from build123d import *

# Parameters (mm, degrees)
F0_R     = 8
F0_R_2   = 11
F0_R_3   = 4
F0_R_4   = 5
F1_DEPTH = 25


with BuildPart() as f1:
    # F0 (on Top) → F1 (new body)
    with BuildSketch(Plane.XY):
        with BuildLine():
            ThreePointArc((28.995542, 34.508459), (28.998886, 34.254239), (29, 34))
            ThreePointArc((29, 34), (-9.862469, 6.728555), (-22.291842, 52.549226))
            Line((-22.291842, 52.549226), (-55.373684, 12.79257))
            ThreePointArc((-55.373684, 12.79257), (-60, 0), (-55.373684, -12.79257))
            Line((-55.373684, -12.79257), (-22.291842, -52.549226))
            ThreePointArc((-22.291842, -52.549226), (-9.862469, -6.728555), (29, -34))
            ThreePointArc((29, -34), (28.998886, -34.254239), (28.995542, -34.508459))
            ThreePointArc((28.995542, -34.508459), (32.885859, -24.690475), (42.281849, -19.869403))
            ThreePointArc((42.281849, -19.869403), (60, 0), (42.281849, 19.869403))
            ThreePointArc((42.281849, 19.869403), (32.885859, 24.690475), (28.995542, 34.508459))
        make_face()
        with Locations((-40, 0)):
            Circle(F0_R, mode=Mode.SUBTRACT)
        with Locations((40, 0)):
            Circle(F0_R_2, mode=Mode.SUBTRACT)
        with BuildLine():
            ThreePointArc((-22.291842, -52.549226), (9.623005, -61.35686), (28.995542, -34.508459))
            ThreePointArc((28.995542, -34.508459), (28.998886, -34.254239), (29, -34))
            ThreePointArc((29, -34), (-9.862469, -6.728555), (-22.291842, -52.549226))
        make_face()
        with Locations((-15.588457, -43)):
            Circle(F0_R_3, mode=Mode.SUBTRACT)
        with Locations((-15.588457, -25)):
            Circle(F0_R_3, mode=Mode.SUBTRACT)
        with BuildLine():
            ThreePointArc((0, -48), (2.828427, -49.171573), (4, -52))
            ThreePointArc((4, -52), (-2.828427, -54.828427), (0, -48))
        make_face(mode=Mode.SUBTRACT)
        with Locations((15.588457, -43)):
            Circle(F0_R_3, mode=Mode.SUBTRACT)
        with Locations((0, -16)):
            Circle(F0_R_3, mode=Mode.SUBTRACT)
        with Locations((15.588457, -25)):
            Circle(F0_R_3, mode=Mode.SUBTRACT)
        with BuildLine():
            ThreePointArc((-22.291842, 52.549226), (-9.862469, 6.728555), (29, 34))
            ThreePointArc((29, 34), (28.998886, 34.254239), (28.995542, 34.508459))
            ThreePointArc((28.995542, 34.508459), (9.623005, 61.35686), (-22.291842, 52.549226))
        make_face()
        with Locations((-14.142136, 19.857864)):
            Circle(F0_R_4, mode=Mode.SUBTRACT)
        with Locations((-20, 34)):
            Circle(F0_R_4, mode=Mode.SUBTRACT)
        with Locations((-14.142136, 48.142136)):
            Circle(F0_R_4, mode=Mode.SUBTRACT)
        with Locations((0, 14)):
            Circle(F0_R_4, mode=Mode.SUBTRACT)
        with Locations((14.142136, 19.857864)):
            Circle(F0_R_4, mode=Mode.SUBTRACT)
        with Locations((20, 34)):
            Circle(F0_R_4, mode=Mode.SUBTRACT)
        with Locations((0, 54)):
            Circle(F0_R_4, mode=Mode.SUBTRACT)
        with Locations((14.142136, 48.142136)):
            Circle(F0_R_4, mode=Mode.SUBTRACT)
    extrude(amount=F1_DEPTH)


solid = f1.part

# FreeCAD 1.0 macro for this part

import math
import FreeCAD as App
import Part
import Sketcher

V = App.Vector
Q = App.Units.Quantity

doc = App.newDocument("Part")
body = doc.addObject("PartDesign::Body", "Body")

# Sketch on XY plane
sketch1 = body.newObject("Sketcher::SketchObject", "Sketch")
sketch1.AttachmentSupport = (doc.getObject("XY_Plane"), [""])
sketch1.MapMode = "FlatFace"
sketch1.addGeometry(Part.ArcOfCircle(Part.Circle(V(44, 34.8, 0), V(0, 0, 1), 15), math.radians(-179), math.radians(-97)), False)
sketch1.addGeometry(Part.ArcOfCircle(Part.Circle(V(0, 34, 0), V(0, 0, 1), 29), math.radians(1), math.radians(140)), False)
sketch1.addGeometry(Part.LineSegment(V(-22.3, 52.5, 0), V(-55.4, 12.8, 0)), False)
sketch1.addGeometry(Part.ArcOfCircle(Part.Circle(V(-40, 0, 0), V(0, 0, 1), 20), math.radians(140), math.radians(220)), False)
sketch1.addGeometry(Part.LineSegment(V(-55.4, -12.8, 0), V(-22.3, -52.5, 0)), False)
sketch1.addGeometry(Part.ArcOfCircle(Part.Circle(V(0, -34, 0), V(0, 0, 1), 29), math.radians(-140), math.radians(-1)), False)
sketch1.addGeometry(Part.ArcOfCircle(Part.Circle(V(44, -34.8, 0), V(0, 0, 1), 15), math.radians(97), math.radians(179)), False)
sketch1.addGeometry(Part.ArcOfCircle(Part.Circle(V(40, 0, 0), V(0, 0, 1), 20), math.radians(-83), math.radians(83)), False)
sketch1.addGeometry(Part.Circle(V(-15.6, -43, 0), V(0, 0, 1), 4), False)
sketch1.addGeometry(Part.ArcOfCircle(Part.Circle(V(0, -52, 0), V(0, 0, 1), 4), math.radians(90), math.radians(360)), False)
sketch1.addGeometry(Part.ArcOfCircle(Part.Circle(V(0, -52, 0), V(0, 0, 1), 4), math.radians(0), math.radians(90)), False)
sketch1.addGeometry(Part.Circle(V(-40, 0, 0), V(0, 0, 1), 8), False)
sketch1.addGeometry(Part.Circle(V(-15.6, -25, 0), V(0, 0, 1), 4), False)
sketch1.addGeometry(Part.Circle(V(0, -16, 0), V(0, 0, 1), 4), False)
sketch1.addGeometry(Part.Circle(V(15.6, -43, 0), V(0, 0, 1), 4), False)
sketch1.addGeometry(Part.Circle(V(15.6, -25, 0), V(0, 0, 1), 4), False)
sketch1.addGeometry(Part.Circle(V(40, 0, 0), V(0, 0, 1), 11), False)
sketch1.addGeometry(Part.Circle(V(0, 14, 0), V(0, 0, 1), 5), False)
sketch1.addGeometry(Part.Circle(V(-14.1, 19.9, 0), V(0, 0, 1), 5), False)
sketch1.addGeometry(Part.Circle(V(-20, 34, 0), V(0, 0, 1), 5), False)
sketch1.addGeometry(Part.Circle(V(-14.1, 48.1, 0), V(0, 0, 1), 5), False)
sketch1.addGeometry(Part.Circle(V(0, 54, 0), V(0, 0, 1), 5), False)
sketch1.addGeometry(Part.Circle(V(14.1, 19.9, 0), V(0, 0, 1), 5), False)
sketch1.addGeometry(Part.Circle(V(20, 34, 0), V(0, 0, 1), 5), False)
sketch1.addGeometry(Part.Circle(V(14.1, 48.1, 0), V(0, 0, 1), 5), False)
sketch1.addConstraint(Sketcher.Constraint("Tangent", 0, 1, 1, 1))
sketch1.addConstraint(Sketcher.Constraint("Tangent", 1, 2, 2, 1))
sketch1.addConstraint(Sketcher.Constraint("Tangent", 2, 2, 3, 1))
sketch1.addConstraint(Sketcher.Constraint("Tangent", 3, 2, 4, 1))
sketch1.addConstraint(Sketcher.Constraint("Tangent", 4, 2, 5, 1))
sketch1.addConstraint(Sketcher.Constraint("Tangent", 5, 2, 6, 2))
sketch1.addConstraint(Sketcher.Constraint("Tangent", 6, 1, 7, 1))
sketch1.addConstraint(Sketcher.Constraint("Tangent", 7, 2, 0, 2))
sketch1.addConstraint(Sketcher.Constraint("Tangent", 9, 1, 10, 2))
sketch1.addConstraint(Sketcher.Constraint("Coincident", 10, 1, 9, 2))
sketch1.addConstraint(Sketcher.Constraint("Coincident", 11, 3, 3, 3))
sketch1.addConstraint(Sketcher.Constraint("Coincident", 16, 3, 7, 3))
sketch1.addConstraint(Sketcher.Constraint("Equal", 1, 5))
sketch1.addConstraint(Sketcher.Constraint("Equal", 0, 6))
sketch1.addConstraint(Sketcher.Constraint("Equal", 3, 7))
sketch1.addConstraint(Sketcher.Constraint("Equal", 8, 9))
sketch1.addConstraint(Sketcher.Constraint("Equal", 10, 12))
sketch1.addConstraint(Sketcher.Constraint("Equal", 12, 13))
sketch1.addConstraint(Sketcher.Constraint("Equal", 13, 14))
sketch1.addConstraint(Sketcher.Constraint("Equal", 14, 15))
sketch1.addConstraint(Sketcher.Constraint("Equal", 17, 18))
sketch1.addConstraint(Sketcher.Constraint("Equal", 18, 19))
sketch1.addConstraint(Sketcher.Constraint("Equal", 19, 20))
sketch1.addConstraint(Sketcher.Constraint("Equal", 20, 21))
sketch1.addConstraint(Sketcher.Constraint("Equal", 21, 22))
sketch1.addConstraint(Sketcher.Constraint("Equal", 22, 23))
sketch1.addConstraint(Sketcher.Constraint("Equal", 23, 24))
sketch1.addConstraint(Sketcher.Constraint("Symmetric", 1, 3, 5, 3, -1, 1))
sketch1.addConstraint(Sketcher.Constraint("Symmetric", 3, 3, 7, 3, -1, 1))
sketch1.addConstraint(Sketcher.Constraint("Symmetric", 8, 3, 14, 3, -2))
sketch1.addConstraint(Sketcher.Constraint("Symmetric", 12, 3, 15, 3, -2))
sketch1.addConstraint(Sketcher.Constraint("Symmetric", 18, 3, 22, 3, -2))
sketch1.addConstraint(Sketcher.Constraint("Symmetric", 19, 3, 23, 3, -2))
sketch1.addConstraint(Sketcher.Constraint("Symmetric", 20, 3, 24, 3, -2))
sketch1.addConstraint(Sketcher.Constraint("Symmetric", 0, 3, 6, 3, -1))
sketch1.addConstraint(Sketcher.Constraint("PointOnObject", 9, 3, -2))
sketch1.addConstraint(Sketcher.Constraint("PointOnObject", 13, 3, -2))
sketch1.addConstraint(Sketcher.Constraint("PointOnObject", 17, 3, -2))
sketch1.addConstraint(Sketcher.Constraint("PointOnObject", 21, 3, -2))
sketch1.addConstraint(Sketcher.Constraint("PointOnObject", 9, 1, -2))
sketch1.addConstraint(Sketcher.Constraint("Horizontal", 1, 3, 19, 3))
sketch1.addConstraint(Sketcher.Constraint("Horizontal", 9, 3, 10, 1))
sketch1.addConstraint(Sketcher.Constraint("Vertical", 8, 3, 12, 3))
sketch1.addConstraint(Sketcher.Constraint("Vertical", 18, 3, 20, 3))
sketch1.addConstraint(Sketcher.Constraint("Diameter", 8, Q("8 mm")))
sketch1.addConstraint(Sketcher.Constraint("Diameter", 11, Q("16 mm")))
sketch1.addConstraint(Sketcher.Constraint("Diameter", 16, Q("22 mm")))
sketch1.addConstraint(Sketcher.Constraint("Diameter", 17, Q("10 mm")))
sketch1.addConstraint(Sketcher.Constraint("Radius", 0, Q("15.000001 mm")))
sketch1.addConstraint(Sketcher.Constraint("Radius", 1, Q("29 mm")))
sketch1.addConstraint(Sketcher.Constraint("Radius", 3, Q("20.000001 mm")))
sketch1.addConstraint(Sketcher.Constraint("DistanceY", -1, 1, 1, 3, Q("34.000001 mm")))
sketch1.addConstraint(Sketcher.Constraint("DistanceX", 3, 3, -1, 1, Q("39.999999 mm")))
sketch1.addConstraint(Sketcher.Constraint("DistanceY", 8, 3, -1, 1, Q("43 mm")))
sketch1.addConstraint(Sketcher.Constraint("DistanceY", 9, 3, -1, 1, Q("52 mm")))
sketch1.addConstraint(Sketcher.Constraint("DistanceY", 12, 3, -1, 1, Q("25 mm")))
sketch1.addConstraint(Sketcher.Constraint("DistanceY", 13, 3, -1, 1, Q("16 mm")))
sketch1.addConstraint(Sketcher.Constraint("DistanceY", -1, 1, 17, 3, Q("14 mm")))
sketch1.addConstraint(Sketcher.Constraint("DistanceX", 19, 3, -1, 1, Q("20 mm")))
sketch1.addConstraint(Sketcher.Constraint("DistanceY", -1, 1, 21, 3, Q("54 mm")))
sketch1.addConstraint(Sketcher.Constraint("DistanceX", 14, 3, 6, 3, Q("28.404781 mm")))
sketch1.addConstraint(Sketcher.Constraint("DistanceY", 20, 3, 1, 2, Q("4.40709 mm")))
sketch1.addConstraint(Sketcher.Constraint("DistanceY", 18, 3, 1, 2, Q("32.691362 mm")))
sketch1.addConstraint(Sketcher.Constraint("DistanceX", 18, 3, -1, 1, Q("14.142136 mm")))
pad1 = body.newObject("PartDesign::Pad", "Pad")
pad1.Profile = sketch1
pad1.Length = 25

doc.recompute()
